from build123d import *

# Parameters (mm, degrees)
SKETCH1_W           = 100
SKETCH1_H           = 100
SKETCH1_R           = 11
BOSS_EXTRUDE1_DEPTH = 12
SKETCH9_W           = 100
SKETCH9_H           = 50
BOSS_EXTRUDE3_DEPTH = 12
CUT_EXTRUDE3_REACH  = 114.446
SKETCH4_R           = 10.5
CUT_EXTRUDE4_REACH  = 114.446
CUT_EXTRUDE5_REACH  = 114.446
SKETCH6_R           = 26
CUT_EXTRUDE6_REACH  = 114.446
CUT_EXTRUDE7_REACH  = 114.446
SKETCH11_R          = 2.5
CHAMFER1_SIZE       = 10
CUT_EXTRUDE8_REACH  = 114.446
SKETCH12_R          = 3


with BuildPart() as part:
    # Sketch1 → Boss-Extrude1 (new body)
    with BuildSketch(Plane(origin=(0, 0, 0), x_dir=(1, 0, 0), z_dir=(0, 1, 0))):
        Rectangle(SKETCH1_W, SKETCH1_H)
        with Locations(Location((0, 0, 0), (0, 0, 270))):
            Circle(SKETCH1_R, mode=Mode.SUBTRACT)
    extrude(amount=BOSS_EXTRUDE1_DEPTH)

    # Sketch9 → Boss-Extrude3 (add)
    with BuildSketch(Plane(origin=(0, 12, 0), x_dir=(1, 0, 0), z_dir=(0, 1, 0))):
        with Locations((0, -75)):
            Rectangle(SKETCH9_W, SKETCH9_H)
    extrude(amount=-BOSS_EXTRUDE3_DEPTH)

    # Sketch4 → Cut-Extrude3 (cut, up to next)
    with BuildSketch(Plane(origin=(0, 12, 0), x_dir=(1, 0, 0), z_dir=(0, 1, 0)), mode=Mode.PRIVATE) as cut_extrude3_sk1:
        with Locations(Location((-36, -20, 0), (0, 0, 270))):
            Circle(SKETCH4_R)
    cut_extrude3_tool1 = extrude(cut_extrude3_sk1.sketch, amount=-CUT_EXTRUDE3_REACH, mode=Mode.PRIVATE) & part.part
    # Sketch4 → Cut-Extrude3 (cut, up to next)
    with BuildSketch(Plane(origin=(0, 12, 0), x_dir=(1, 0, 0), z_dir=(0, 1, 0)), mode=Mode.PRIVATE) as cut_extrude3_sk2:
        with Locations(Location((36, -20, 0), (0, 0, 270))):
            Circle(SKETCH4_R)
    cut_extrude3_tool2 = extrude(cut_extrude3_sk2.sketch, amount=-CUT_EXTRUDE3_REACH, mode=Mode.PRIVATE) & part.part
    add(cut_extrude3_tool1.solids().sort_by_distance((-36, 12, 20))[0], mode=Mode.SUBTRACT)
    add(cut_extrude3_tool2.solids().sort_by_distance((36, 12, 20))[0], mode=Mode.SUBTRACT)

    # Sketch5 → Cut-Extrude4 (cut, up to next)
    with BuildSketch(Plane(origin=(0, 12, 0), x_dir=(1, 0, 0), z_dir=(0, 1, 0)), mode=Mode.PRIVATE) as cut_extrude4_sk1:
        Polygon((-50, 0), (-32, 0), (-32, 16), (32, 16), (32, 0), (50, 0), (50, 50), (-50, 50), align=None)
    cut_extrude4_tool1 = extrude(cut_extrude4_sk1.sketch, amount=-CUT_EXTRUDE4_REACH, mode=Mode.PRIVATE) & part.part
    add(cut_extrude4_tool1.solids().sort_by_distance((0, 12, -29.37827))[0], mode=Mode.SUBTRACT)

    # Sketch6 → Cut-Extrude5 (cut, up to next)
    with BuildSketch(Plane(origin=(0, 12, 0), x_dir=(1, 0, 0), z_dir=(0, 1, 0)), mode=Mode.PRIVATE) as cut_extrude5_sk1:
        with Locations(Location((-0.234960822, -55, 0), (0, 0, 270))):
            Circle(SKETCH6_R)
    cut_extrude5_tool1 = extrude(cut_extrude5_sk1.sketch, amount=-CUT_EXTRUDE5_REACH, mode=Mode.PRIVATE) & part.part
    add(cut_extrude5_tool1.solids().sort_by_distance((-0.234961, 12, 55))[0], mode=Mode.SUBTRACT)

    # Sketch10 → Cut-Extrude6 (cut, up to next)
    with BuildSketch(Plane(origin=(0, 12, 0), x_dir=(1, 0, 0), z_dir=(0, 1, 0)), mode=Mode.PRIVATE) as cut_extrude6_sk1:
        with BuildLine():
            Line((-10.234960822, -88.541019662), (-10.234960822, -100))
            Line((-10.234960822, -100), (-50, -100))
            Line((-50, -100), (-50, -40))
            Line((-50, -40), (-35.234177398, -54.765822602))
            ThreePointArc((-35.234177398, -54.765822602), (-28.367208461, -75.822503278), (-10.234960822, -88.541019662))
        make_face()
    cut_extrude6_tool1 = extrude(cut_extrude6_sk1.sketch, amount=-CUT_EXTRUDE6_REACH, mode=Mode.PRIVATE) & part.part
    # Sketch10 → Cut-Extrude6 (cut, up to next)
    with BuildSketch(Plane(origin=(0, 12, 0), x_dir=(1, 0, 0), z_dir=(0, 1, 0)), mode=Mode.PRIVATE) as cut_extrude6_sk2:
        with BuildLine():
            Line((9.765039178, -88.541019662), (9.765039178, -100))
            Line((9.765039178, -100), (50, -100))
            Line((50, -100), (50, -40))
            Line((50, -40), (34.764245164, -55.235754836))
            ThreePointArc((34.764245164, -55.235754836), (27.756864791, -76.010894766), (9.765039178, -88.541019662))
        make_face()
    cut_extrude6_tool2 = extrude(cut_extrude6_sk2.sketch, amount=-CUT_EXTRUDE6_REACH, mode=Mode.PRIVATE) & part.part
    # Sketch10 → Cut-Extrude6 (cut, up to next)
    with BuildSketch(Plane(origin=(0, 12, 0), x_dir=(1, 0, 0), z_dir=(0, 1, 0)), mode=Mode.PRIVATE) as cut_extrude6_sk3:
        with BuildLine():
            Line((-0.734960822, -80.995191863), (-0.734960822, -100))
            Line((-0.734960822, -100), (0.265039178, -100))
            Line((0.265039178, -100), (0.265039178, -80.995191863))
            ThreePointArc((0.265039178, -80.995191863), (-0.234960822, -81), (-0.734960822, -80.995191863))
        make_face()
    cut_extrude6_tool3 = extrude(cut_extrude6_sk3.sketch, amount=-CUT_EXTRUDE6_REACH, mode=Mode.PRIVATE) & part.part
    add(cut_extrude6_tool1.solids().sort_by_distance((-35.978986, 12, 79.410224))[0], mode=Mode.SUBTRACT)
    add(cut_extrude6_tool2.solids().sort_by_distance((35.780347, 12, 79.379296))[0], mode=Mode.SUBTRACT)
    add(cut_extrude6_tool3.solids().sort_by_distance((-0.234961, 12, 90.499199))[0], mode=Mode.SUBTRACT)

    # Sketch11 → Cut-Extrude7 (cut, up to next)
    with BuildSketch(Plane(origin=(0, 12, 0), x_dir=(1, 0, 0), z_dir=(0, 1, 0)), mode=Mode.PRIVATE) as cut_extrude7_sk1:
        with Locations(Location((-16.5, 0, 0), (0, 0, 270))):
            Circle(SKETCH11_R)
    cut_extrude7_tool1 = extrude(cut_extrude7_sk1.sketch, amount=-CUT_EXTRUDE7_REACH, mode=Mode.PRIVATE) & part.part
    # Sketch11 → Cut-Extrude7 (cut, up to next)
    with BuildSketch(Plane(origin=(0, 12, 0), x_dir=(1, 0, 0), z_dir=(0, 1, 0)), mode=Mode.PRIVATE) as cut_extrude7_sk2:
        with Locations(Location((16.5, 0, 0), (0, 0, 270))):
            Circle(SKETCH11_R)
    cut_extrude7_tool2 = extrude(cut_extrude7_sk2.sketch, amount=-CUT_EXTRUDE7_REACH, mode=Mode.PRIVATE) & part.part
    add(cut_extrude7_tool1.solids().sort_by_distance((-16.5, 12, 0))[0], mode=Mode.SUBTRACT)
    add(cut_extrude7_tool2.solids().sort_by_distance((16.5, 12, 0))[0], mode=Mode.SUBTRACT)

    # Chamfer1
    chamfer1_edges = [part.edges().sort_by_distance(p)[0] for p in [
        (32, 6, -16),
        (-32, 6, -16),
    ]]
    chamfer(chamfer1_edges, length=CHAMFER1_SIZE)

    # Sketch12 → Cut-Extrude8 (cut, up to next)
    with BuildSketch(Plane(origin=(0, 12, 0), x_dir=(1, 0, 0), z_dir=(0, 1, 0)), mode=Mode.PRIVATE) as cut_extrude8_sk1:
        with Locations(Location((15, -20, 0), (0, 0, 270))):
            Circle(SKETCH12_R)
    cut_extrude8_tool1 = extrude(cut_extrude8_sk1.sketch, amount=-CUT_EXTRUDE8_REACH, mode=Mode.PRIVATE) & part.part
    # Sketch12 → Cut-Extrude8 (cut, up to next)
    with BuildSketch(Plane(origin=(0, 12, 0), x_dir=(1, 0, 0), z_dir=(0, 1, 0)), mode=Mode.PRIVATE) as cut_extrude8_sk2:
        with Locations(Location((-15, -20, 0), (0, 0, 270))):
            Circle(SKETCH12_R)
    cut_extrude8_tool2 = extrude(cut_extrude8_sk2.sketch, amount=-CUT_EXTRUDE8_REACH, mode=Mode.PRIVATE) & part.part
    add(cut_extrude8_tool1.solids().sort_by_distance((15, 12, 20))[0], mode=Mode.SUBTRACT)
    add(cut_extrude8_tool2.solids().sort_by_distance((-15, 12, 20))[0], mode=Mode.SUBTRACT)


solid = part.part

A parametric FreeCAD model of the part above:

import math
import FreeCAD as App
import Part
import Sketcher

V = App.Vector
Q = App.Units.Quantity


def edges_at(feature, points):
    """Names of the edges that pass closest to the given points."""
    edges = feature.Shape.Edges
    near = lambda p: min(range(len(edges)), key=lambda i: edges[i].distToShape(Part.Vertex(*p))[0])
    return sorted({f"Edge{near(p) + 1}" for p in points})

doc = App.newDocument("Part")
body = doc.addObject("PartDesign::Body", "Body")

sketch1 = doc.addObject("Sketcher::SketchObject", "Sketch")
body.addObject(sketch1)
sketch1.AttachmentSupport = (doc.XZ_Plane, [""])
sketch1.MapMode = "FlatFace"
sketch1.addGeometry(Part.LineSegment(V(-50, -50, 0), V(-50, 50, 0)), False)
sketch1.addGeometry(Part.LineSegment(V(-50, 50, 0), V(50, 50, 0)), False)
sketch1.addGeometry(Part.LineSegment(V(50, 50, 0), V(50, -50, 0)), False)
sketch1.addGeometry(Part.LineSegment(V(50, -50, 0), V(-50, -50, 0)), False)
sketch1.addGeometry(Part.Circle(V(0, 0, 0), V(0, 0, 1), 11), False)
sketch1.addConstraint(Sketcher.Constraint("Coincident", 0, 2, 1, 1))
sketch1.addConstraint(Sketcher.Constraint("Coincident", 1, 2, 2, 1))
sketch1.addConstraint(Sketcher.Constraint("Coincident", 2, 2, 3, 1))
sketch1.addConstraint(Sketcher.Constraint("Coincident", 3, 2, 0, 1))
sketch1.addConstraint(Sketcher.Constraint("Vertical", 0))
sketch1.addConstraint(Sketcher.Constraint("Horizontal", 1))
sketch1.addConstraint(Sketcher.Constraint("Vertical", 2))
sketch1.addConstraint(Sketcher.Constraint("Horizontal", 3))
sketch1.addConstraint(Sketcher.Constraint("Coincident", 4, 3, -1, 1))
sketch1.addConstraint(Sketcher.Constraint("Symmetric", 0, 2, 2, 2, -1, 1))
sketch1.addConstraint(Sketcher.Constraint("Equal", 3, 0))
sketch1.addConstraint(Sketcher.Constraint("Diameter", 4, Q("22 mm")))
sketch1.addConstraint(Sketcher.Constraint("DistanceX", 1, 1, 1, 2, Q("100 mm")))
pad1 = doc.addObject("PartDesign::Pad", "Pad")
body.addObject(pad1)
pad1.Profile = sketch1
pad1.Length = 12
pad1.Reversed = True

sketch2 = doc.addObject("Sketcher::SketchObject", "Sketch001")
body.addObject(sketch2)
sketch2.AttachmentSupport = (doc.XZ_Plane, [""])
sketch2.MapMode = "FlatFace"
sketch2.AttachmentOffset = App.Placement(V(0, 0, -12), App.Rotation())
sketch2.addGeometry(Part.LineSegment(V(-50, 50, 0), V(-50, 100, 0)), False)
sketch2.addGeometry(Part.LineSegment(V(-50, 100, 0), V(50, 100, 0)), False)
sketch2.addGeometry(Part.LineSegment(V(50, 100, 0), V(50, 50, 0)), False)
sketch2.addGeometry(Part.LineSegment(V(50, 50, 0), V(-50, 50, 0)), False)
sketch2.addConstraint(Sketcher.Constraint("Coincident", 0, 2, 1, 1))
sketch2.addConstraint(Sketcher.Constraint("Coincident", 1, 2, 2, 1))
sketch2.addConstraint(Sketcher.Constraint("Coincident", 2, 2, 3, 1))
sketch2.addConstraint(Sketcher.Constraint("Coincident", 3, 2, 0, 1))
sketch2.addConstraint(Sketcher.Constraint("Vertical", 0))
sketch2.addConstraint(Sketcher.Constraint("Horizontal", 1))
sketch2.addConstraint(Sketcher.Constraint("Vertical", 2))
sketch2.addConstraint(Sketcher.Constraint("Horizontal", 3))
sketch2.addConstraint(Sketcher.Constraint("DistanceX", 1, 1, 1, 2, Q("100 mm")))
sketch2.addConstraint(Sketcher.Constraint("DistanceY", 0, 1, 0, 2, Q("50 mm")))
sketch2.addConstraint(Sketcher.Constraint("DistanceX", 0, 2, -1, 1, Q("50 mm")))
sketch2.addConstraint(Sketcher.Constraint("DistanceY", -1, 1, 0, 2, Q("100 mm")))
pad2 = doc.addObject("PartDesign::Pad", "Pad001")
body.addObject(pad2)
pad2.Profile = sketch2
pad2.Length = 12

sketch3 = doc.addObject("Sketcher::SketchObject", "Sketch002")
body.addObject(sketch3)
sketch3.AttachmentSupport = (doc.XZ_Plane, [""])
sketch3.MapMode = "FlatFace"
sketch3.AttachmentOffset = App.Placement(V(0, 0, -12), App.Rotation())
sketch3.addGeometry(Part.Circle(V(-36, 20, 0), V(0, 0, 1), 10.5), False)
sketch3.addConstraint(Sketcher.Constraint("Diameter", 0, Q("21 mm")))
sketch3.addConstraint(Sketcher.Constraint("DistanceX", 0, 3, -1, 1, Q("36 mm")))
sketch3.addConstraint(Sketcher.Constraint("DistanceY", -1, 1, 0, 3, Q("20 mm")))
pocket1 = doc.addObject("PartDesign::Pocket", "Pocket")
body.addObject(pocket1)
pocket1.Profile = sketch3
pocket1.Type = "UpToFirst"
pocket1.Reversed = True

sketch4 = doc.addObject("Sketcher::SketchObject", "Sketch003")
body.addObject(sketch4)
sketch4.AttachmentSupport = (doc.XZ_Plane, [""])
sketch4.MapMode = "FlatFace"
sketch4.AttachmentOffset = App.Placement(V(0, 0, -12), App.Rotation())
sketch4.addGeometry(Part.Circle(V(36, 20, 0), V(0, 0, 1), 10.5), False)
sketch4.addConstraint(Sketcher.Constraint("Diameter", 0, Q("21 mm")))
sketch4.addConstraint(Sketcher.Constraint("DistanceX", -1, 1, 0, 3, Q("36 mm")))
sketch4.addConstraint(Sketcher.Constraint("DistanceY", -1, 1, 0, 3, Q("20 mm")))
pocket2 = doc.addObject("PartDesign::Pocket", "Pocket001")
body.addObject(pocket2)
pocket2.Profile = sketch4
pocket2.Type = "UpToFirst"
pocket2.Reversed = True

sketch5 = doc.addObject("Sketcher::SketchObject", "Sketch004")
body.addObject(sketch5)
sketch5.AttachmentSupport = (doc.XZ_Plane, [""])
sketch5.MapMode = "FlatFace"
sketch5.AttachmentOffset = App.Placement(V(0, 0, -12), App.Rotation())
sketch5.addGeometry(Part.LineSegment(V(-50, 0, 0), V(-32, 0, 0)), False)
sketch5.addGeometry(Part.LineSegment(V(-32, 0, 0), V(-32, -16, 0)), False)
sketch5.addGeometry(Part.LineSegment(V(-32, -16, 0), V(32, -16, 0)), False)
sketch5.addGeometry(Part.LineSegment(V(32, -16, 0), V(32, 0, 0)), False)
sketch5.addGeometry(Part.LineSegment(V(32, 0, 0), V(50, 0, 0)), False)
sketch5.addGeometry(Part.LineSegment(V(50, 0, 0), V(50, -50, 0)), False)
sketch5.addGeometry(Part.LineSegment(V(50, -50, 0), V(-50, -50, 0)), False)
sketch5.addGeometry(Part.LineSegment(V(-50, -50, 0), V(-50, 0, 0)), False)
sketch5.addConstraint(Sketcher.Constraint("Coincident", 0, 2, 1, 1))
sketch5.addConstraint(Sketcher.Constraint("Coincident", 1, 2, 2, 1))
sketch5.addConstraint(Sketcher.Constraint("Coincident", 2, 2, 3, 1))
sketch5.addConstraint(Sketcher.Constraint("Coincident", 3, 2, 4, 1))
sketch5.addConstraint(Sketcher.Constraint("Coincident", 4, 2, 5, 1))
sketch5.addConstraint(Sketcher.Constraint("Coincident", 5, 2, 6, 1))
sketch5.addConstraint(Sketcher.Constraint("Coincident", 6, 2, 7, 1))
sketch5.addConstraint(Sketcher.Constraint("Coincident", 7, 2, 0, 1))
sketch5.addConstraint(Sketcher.Constraint("Horizontal", 0))
sketch5.addConstraint(Sketcher.Constraint("Vertical", 1))
sketch5.addConstraint(Sketcher.Constraint("Horizontal", 2))
sketch5.addConstraint(Sketcher.Constraint("Vertical", 3))
sketch5.addConstraint(Sketcher.Constraint("Horizontal", 4))
sketch5.addConstraint(Sketcher.Constraint("Vertical", 5))
sketch5.addConstraint(Sketcher.Constraint("Horizontal", 6))
sketch5.addConstraint(Sketcher.Constraint("Vertical", 7))
sketch5.addConstraint(Sketcher.Constraint("Symmetric", 0, 2, 3, 2, -1, 1))
sketch5.addConstraint(Sketcher.Constraint("Symmetric", 4, 2, 7, 2, -2))
sketch5.addConstraint(Sketcher.Constraint("DistanceX", 0, 1, 0, 2, Q("18 mm")))
sketch5.addConstraint(Sketcher.Constraint("DistanceX", 2, 1, 2, 2, Q("64 mm")))
sketch5.addConstraint(Sketcher.Constraint("DistanceY", 1, 2, 1, 1, Q("16 mm")))
sketch5.addConstraint(Sketcher.Constraint("DistanceY", 5, 2, 5, 1, Q("50 mm")))
pocket3 = doc.addObject("PartDesign::Pocket", "Pocket002")
body.addObject(pocket3)
pocket3.Profile = sketch5
pocket3.Type = "UpToFirst"
pocket3.Reversed = True

sketch6 = doc.addObject("Sketcher::SketchObject", "Sketch005")
body.addObject(sketch6)
sketch6.AttachmentSupport = (doc.XZ_Plane, [""])
sketch6.MapMode = "FlatFace"
sketch6.AttachmentOffset = App.Placement(V(0, 0, -12), App.Rotation())
sketch6.addGeometry(Part.Circle(V(-0.234961, 55, 0), V(0, 0, 1), 26), False)
sketch6.addConstraint(Sketcher.Constraint("Diameter", 0, Q("52 mm")))
sketch6.addConstraint(Sketcher.Constraint("DistanceY", -1, 1, 0, 3, Q("55 mm")))
sketch6.addConstraint(Sketcher.Constraint("DistanceX", 0, 3, -1, 1, Q("0.234961 mm")))
pocket4 = doc.addObject("PartDesign::Pocket", "Pocket003")
body.addObject(pocket4)
pocket4.Profile = sketch6
pocket4.Type = "UpToFirst"
pocket4.Reversed = True

sketch7 = doc.addObject("Sketcher::SketchObject", "Sketch006")
body.addObject(sketch7)
sketch7.AttachmentSupport = (doc.XZ_Plane, [""])
sketch7.MapMode = "FlatFace"
sketch7.AttachmentOffset = App.Placement(V(0, 0, -12), App.Rotation())
sketch7.addGeometry(Part.LineSegment(V(-10.234961, 100, 0), V(-10.234961, 88.54102, 0)), False)
sketch7.addGeometry(Part.ArcOfCircle(Part.Circle(V(-0.234961, 55, 0), V(0, 0, 1), 35), math.radians(106.60155), math.radians(180.383356)), False)
sketch7.addGeometry(Part.LineSegment(V(-35.234177, 54.765823, 0), V(-50, 40, 0)), False)
sketch7.addGeometry(Part.LineSegment(V(-50, 40, 0), V(-50, 100, 0)), False)
sketch7.addGeometry(Part.LineSegment(V(-50, 100, 0), V(-10.234961, 100, 0)), False)
sketch7.addConstraint(Sketcher.Constraint("Coincident", 0, 2, 1, 1))
sketch7.addConstraint(Sketcher.Constraint("Coincident", 1, 2, 2, 1))
sketch7.addConstraint(Sketcher.Constraint("Coincident", 2, 2, 3, 1))
sketch7.addConstraint(Sketcher.Constraint("Coincident", 3, 2, 4, 1))
sketch7.addConstraint(Sketcher.Constraint("Coincident", 4, 2, 0, 1))
sketch7.addConstraint(Sketcher.Constraint("Vertical", 0))
sketch7.addConstraint(Sketcher.Constraint("Vertical", 3))
sketch7.addConstraint(Sketcher.Constraint("Horizontal", 4))
sketch7.addConstraint(Sketcher.Constraint("Radius", 1, Q("35 mm")))
sketch7.addConstraint(Sketcher.Constraint("DistanceY", 3, 1, 3, 2, Q("60 mm")))
sketch7.addConstraint(Sketcher.Constraint("Angle", 2, Q("-135 deg")))
sketch7.addConstraint(Sketcher.Constraint("DistanceY", -1, 1, 1, 3, Q("55 mm")))
sketch7.addConstraint(Sketcher.Constraint("DistanceX", 2, 2, -1, 1, Q("50 mm")))
sketch7.addConstraint(Sketcher.Constraint("DistanceY", -1, 1, 2, 2, Q("40 mm")))
sketch7.addConstraint(Sketcher.Constraint("DistanceX", 0, 2, 1, 3, Q("10 mm")))
sketch7.addConstraint(Sketcher.Constraint("DistanceX", 4, 1, 4, 2, Q("39.765039 mm")))
pocket5 = doc.addObject("PartDesign::Pocket", "Pocket004")
body.addObject(pocket5)
pocket5.Profile = sketch7
pocket5.Type = "UpToFirst"
pocket5.Reversed = True

sketch8 = doc.addObject("Sketcher::SketchObject", "Sketch007")
body.addObject(sketch8)
sketch8.AttachmentSupport = (doc.XZ_Plane, [""])
sketch8.MapMode = "FlatFace"
sketch8.AttachmentOffset = App.Placement(V(0, 0, -12), App.Rotation())
sketch8.addGeometry(Part.LineSegment(V(9.765039, 88.54102, 0), V(9.765039, 100, 0)), False)
sketch8.addGeometry(Part.LineSegment(V(9.765039, 100, 0), V(50, 100, 0)), False)
sketch8.addGeometry(Part.LineSegment(V(50, 100, 0), V(50, 40, 0)), False)
sketch8.addGeometry(Part.LineSegment(V(50, 40, 0), V(34.764245, 55.235755, 0)), False)
sketch8.addGeometry(Part.ArcOfCircle(Part.Circle(V(-0.234961, 55, 0), V(0, 0, 1), 35), math.radians(0.385939), math.radians(73.39845)), False)
sketch8.addConstraint(Sketcher.Constraint("Coincident", 0, 2, 1, 1))
sketch8.addConstraint(Sketcher.Constraint("Coincident", 1, 2, 2, 1))
sketch8.addConstraint(Sketcher.Constraint("Coincident", 2, 2, 3, 1))
sketch8.addConstraint(Sketcher.Constraint("Coincident", 3, 2, 4, 1))
sketch8.addConstraint(Sketcher.Constraint("Coincident", 4, 2, 0, 1))
sketch8.addConstraint(Sketcher.Constraint("Vertical", 0))
sketch8.addConstraint(Sketcher.Constraint("Horizontal", 1))
sketch8.addConstraint(Sketcher.Constraint("Vertical", 2))
sketch8.addConstraint(Sketcher.Constraint("Radius", 4, Q("35 mm")))
sketch8.addConstraint(Sketcher.Constraint("DistanceY", 2, 2, 2, 1, Q("60 mm")))
sketch8.addConstraint(Sketcher.Constraint("Angle", 3, Q("135 deg")))
sketch8.addConstraint(Sketcher.Constraint("DistanceY", -1, 1, 4, 3, Q("55 mm")))
sketch8.addConstraint(Sketcher.Constraint("DistanceY", -1, 1, 0, 2, Q("100 mm")))
sketch8.addConstraint(Sketcher.Constraint("DistanceX", -1, 1, 1, 2, Q("50 mm")))
sketch8.addConstraint(Sketcher.Constraint("DistanceX", 4, 3, 0, 2, Q("10 mm")))
sketch8.addConstraint(Sketcher.Constraint("DistanceX", 1, 1, 1, 2, Q("40.234961 mm")))
pocket6 = doc.addObject("PartDesign::Pocket", "Pocket005")
body.addObject(pocket6)
pocket6.Profile = sketch8
pocket6.Type = "UpToFirst"
pocket6.Reversed = True

sketch9 = doc.addObject("Sketcher::SketchObject", "Sketch008")
body.addObject(sketch9)
sketch9.AttachmentSupport = (doc.XZ_Plane, [""])
sketch9.MapMode = "FlatFace"
sketch9.AttachmentOffset = App.Placement(V(0, 0, -12), App.Rotation())
sketch9.addGeometry(Part.LineSegment(V(-0.734961, 80.995192, 0), V(-0.734961, 100, 0)), False)
sketch9.addGeometry(Part.LineSegment(V(-0.734961, 100, 0), V(0.265039, 100, 0)), False)
sketch9.addGeometry(Part.LineSegment(V(0.265039, 100, 0), V(0.265039, 80.995192, 0)), False)
sketch9.addGeometry(Part.ArcOfCircle(Part.Circle(V(-0.234961, 55.000001, 0), V(0, 0, 1), 25.999999), math.radians(88.89809), math.radians(91.10191)), False)
sketch9.addConstraint(Sketcher.Constraint("Coincident", 0, 2, 1, 1))
sketch9.addConstraint(Sketcher.Constraint("Coincident", 1, 2, 2, 1))
sketch9.addConstraint(Sketcher.Constraint("Coincident", 2, 2, 3, 1))
sketch9.addConstraint(Sketcher.Constraint("Coincident", 3, 2, 0, 1))
sketch9.addConstraint(Sketcher.Constraint("Vertical", 0))
sketch9.addConstraint(Sketcher.Constraint("Horizontal", 1))
sketch9.addConstraint(Sketcher.Constraint("Vertical", 2))
sketch9.addConstraint(Sketcher.Constraint("Horizontal", 2, 2, 3, 2))
sketch9.addConstraint(Sketcher.Constraint("Radius", 3, Q("25.999999 mm")))
sketch9.addConstraint(Sketcher.Constraint("DistanceX", 1, 1, 1, 2, Q("1 mm")))
sketch9.addConstraint(Sketcher.Constraint("DistanceY", -1, 1, 3, 3, Q("55.000001 mm")))
sketch9.addConstraint(Sketcher.Constraint("DistanceY", -1, 1, 0, 2, Q("100 mm")))
sketch9.addConstraint(Sketcher.Constraint("DistanceX", 3, 3, -1, 1, Q("0.234961 mm")))
pocket7 = doc.addObject("PartDesign::Pocket", "Pocket006")
body.addObject(pocket7)
pocket7.Profile = sketch9
pocket7.Type = "UpToFirst"
pocket7.Reversed = True

sketch10 = doc.addObject("Sketcher::SketchObject", "Sketch009")
body.addObject(sketch10)
sketch10.AttachmentSupport = (doc.XZ_Plane, [""])
sketch10.MapMode = "FlatFace"
sketch10.AttachmentOffset = App.Placement(V(0, 0, -12), App.Rotation())
sketch10.addGeometry(Part.Circle(V(-16.5, 0, 0), V(0, 0, 1), 2.5), False)
sketch10.addConstraint(Sketcher.Constraint("PointOnObject", 0, 3, -1))
sketch10.addConstraint(Sketcher.Constraint("Diameter", 0, Q("5 mm")))
sketch10.addConstraint(Sketcher.Constraint("DistanceX", 0, 3, -1, 1, Q("16.5 mm")))
pocket8 = doc.addObject("PartDesign::Pocket", "Pocket007")
body.addObject(pocket8)
pocket8.Profile = sketch10
pocket8.Type = "UpToFirst"
pocket8.Reversed = True

sketch11 = doc.addObject("Sketcher::SketchObject", "Sketch010")
body.addObject(sketch11)
sketch11.AttachmentSupport = (doc.XZ_Plane, [""])
sketch11.MapMode = "FlatFace"
sketch11.AttachmentOffset = App.Placement(V(0, 0, -12), App.Rotation())
sketch11.addGeometry(Part.Circle(V(16.5, 0, 0), V(0, 0, 1), 2.5), False)
sketch11.addConstraint(Sketcher.Constraint("PointOnObject", 0, 3, -1))
sketch11.addConstraint(Sketcher.Constraint("Diameter", 0, Q("5 mm")))
sketch11.addConstraint(Sketcher.Constraint("DistanceX", -1, 1, 0, 3, Q("16.5 mm")))
pocket9 = doc.addObject("PartDesign::Pocket", "Pocket008")
body.addObject(pocket9)
pocket9.Profile = sketch11
pocket9.Type = "UpToFirst"
pocket9.Reversed = True
doc.recompute()

chamfer = doc.addObject("PartDesign::Chamfer", "Chamfer")
body.addObject(chamfer)
chamfer.Base = (pocket9, edges_at(pocket9, [(32, 6, -16), (-32, 6, -16)]))
chamfer.Size = 10

sketch12 = doc.addObject("Sketcher::SketchObject", "Sketch011")
body.addObject(sketch12)
sketch12.AttachmentSupport = (doc.XZ_Plane, [""])
sketch12.MapMode = "FlatFace"
sketch12.AttachmentOffset = App.Placement(V(0, 0, -12), App.Rotation())
sketch12.addGeometry(Part.Circle(V(15, 20, 0), V(0, 0, 1), 3), False)
sketch12.addConstraint(Sketcher.Constraint("Diameter", 0, Q("6 mm")))
sketch12.addConstraint(Sketcher.Constraint("DistanceX", -1, 1, 0, 3, Q("15 mm")))
sketch12.addConstraint(Sketcher.Constraint("DistanceY", -1, 1, 0, 3, Q("20 mm")))
pocket10 = doc.addObject("PartDesign::Pocket", "Pocket009")
body.addObject(pocket10)
pocket10.Profile = sketch12
pocket10.Type = "UpToFirst"
pocket10.Reversed = True

sketch13 = doc.addObject("Sketcher::SketchObject", "Sketch012")
body.addObject(sketch13)
sketch13.AttachmentSupport = (doc.XZ_Plane, [""])
sketch13.MapMode = "FlatFace"
sketch13.AttachmentOffset = App.Placement(V(0, 0, -12), App.Rotation())
sketch13.addGeometry(Part.Circle(V(-15, 20, 0), V(0, 0, 1), 3), False)
sketch13.addConstraint(Sketcher.Constraint("Diameter", 0, Q("6 mm")))
sketch13.addConstraint(Sketcher.Constraint("DistanceX", 0, 3, -1, 1, Q("15 mm")))
sketch13.addConstraint(Sketcher.Constraint("DistanceY", -1, 1, 0, 3, Q("20 mm")))
pocket11 = doc.addObject("PartDesign::Pocket", "Pocket010")
body.addObject(pocket11)
pocket11.Profile = sketch13
pocket11.Type = "UpToFirst"
pocket11.Reversed = True

doc.recompute()
